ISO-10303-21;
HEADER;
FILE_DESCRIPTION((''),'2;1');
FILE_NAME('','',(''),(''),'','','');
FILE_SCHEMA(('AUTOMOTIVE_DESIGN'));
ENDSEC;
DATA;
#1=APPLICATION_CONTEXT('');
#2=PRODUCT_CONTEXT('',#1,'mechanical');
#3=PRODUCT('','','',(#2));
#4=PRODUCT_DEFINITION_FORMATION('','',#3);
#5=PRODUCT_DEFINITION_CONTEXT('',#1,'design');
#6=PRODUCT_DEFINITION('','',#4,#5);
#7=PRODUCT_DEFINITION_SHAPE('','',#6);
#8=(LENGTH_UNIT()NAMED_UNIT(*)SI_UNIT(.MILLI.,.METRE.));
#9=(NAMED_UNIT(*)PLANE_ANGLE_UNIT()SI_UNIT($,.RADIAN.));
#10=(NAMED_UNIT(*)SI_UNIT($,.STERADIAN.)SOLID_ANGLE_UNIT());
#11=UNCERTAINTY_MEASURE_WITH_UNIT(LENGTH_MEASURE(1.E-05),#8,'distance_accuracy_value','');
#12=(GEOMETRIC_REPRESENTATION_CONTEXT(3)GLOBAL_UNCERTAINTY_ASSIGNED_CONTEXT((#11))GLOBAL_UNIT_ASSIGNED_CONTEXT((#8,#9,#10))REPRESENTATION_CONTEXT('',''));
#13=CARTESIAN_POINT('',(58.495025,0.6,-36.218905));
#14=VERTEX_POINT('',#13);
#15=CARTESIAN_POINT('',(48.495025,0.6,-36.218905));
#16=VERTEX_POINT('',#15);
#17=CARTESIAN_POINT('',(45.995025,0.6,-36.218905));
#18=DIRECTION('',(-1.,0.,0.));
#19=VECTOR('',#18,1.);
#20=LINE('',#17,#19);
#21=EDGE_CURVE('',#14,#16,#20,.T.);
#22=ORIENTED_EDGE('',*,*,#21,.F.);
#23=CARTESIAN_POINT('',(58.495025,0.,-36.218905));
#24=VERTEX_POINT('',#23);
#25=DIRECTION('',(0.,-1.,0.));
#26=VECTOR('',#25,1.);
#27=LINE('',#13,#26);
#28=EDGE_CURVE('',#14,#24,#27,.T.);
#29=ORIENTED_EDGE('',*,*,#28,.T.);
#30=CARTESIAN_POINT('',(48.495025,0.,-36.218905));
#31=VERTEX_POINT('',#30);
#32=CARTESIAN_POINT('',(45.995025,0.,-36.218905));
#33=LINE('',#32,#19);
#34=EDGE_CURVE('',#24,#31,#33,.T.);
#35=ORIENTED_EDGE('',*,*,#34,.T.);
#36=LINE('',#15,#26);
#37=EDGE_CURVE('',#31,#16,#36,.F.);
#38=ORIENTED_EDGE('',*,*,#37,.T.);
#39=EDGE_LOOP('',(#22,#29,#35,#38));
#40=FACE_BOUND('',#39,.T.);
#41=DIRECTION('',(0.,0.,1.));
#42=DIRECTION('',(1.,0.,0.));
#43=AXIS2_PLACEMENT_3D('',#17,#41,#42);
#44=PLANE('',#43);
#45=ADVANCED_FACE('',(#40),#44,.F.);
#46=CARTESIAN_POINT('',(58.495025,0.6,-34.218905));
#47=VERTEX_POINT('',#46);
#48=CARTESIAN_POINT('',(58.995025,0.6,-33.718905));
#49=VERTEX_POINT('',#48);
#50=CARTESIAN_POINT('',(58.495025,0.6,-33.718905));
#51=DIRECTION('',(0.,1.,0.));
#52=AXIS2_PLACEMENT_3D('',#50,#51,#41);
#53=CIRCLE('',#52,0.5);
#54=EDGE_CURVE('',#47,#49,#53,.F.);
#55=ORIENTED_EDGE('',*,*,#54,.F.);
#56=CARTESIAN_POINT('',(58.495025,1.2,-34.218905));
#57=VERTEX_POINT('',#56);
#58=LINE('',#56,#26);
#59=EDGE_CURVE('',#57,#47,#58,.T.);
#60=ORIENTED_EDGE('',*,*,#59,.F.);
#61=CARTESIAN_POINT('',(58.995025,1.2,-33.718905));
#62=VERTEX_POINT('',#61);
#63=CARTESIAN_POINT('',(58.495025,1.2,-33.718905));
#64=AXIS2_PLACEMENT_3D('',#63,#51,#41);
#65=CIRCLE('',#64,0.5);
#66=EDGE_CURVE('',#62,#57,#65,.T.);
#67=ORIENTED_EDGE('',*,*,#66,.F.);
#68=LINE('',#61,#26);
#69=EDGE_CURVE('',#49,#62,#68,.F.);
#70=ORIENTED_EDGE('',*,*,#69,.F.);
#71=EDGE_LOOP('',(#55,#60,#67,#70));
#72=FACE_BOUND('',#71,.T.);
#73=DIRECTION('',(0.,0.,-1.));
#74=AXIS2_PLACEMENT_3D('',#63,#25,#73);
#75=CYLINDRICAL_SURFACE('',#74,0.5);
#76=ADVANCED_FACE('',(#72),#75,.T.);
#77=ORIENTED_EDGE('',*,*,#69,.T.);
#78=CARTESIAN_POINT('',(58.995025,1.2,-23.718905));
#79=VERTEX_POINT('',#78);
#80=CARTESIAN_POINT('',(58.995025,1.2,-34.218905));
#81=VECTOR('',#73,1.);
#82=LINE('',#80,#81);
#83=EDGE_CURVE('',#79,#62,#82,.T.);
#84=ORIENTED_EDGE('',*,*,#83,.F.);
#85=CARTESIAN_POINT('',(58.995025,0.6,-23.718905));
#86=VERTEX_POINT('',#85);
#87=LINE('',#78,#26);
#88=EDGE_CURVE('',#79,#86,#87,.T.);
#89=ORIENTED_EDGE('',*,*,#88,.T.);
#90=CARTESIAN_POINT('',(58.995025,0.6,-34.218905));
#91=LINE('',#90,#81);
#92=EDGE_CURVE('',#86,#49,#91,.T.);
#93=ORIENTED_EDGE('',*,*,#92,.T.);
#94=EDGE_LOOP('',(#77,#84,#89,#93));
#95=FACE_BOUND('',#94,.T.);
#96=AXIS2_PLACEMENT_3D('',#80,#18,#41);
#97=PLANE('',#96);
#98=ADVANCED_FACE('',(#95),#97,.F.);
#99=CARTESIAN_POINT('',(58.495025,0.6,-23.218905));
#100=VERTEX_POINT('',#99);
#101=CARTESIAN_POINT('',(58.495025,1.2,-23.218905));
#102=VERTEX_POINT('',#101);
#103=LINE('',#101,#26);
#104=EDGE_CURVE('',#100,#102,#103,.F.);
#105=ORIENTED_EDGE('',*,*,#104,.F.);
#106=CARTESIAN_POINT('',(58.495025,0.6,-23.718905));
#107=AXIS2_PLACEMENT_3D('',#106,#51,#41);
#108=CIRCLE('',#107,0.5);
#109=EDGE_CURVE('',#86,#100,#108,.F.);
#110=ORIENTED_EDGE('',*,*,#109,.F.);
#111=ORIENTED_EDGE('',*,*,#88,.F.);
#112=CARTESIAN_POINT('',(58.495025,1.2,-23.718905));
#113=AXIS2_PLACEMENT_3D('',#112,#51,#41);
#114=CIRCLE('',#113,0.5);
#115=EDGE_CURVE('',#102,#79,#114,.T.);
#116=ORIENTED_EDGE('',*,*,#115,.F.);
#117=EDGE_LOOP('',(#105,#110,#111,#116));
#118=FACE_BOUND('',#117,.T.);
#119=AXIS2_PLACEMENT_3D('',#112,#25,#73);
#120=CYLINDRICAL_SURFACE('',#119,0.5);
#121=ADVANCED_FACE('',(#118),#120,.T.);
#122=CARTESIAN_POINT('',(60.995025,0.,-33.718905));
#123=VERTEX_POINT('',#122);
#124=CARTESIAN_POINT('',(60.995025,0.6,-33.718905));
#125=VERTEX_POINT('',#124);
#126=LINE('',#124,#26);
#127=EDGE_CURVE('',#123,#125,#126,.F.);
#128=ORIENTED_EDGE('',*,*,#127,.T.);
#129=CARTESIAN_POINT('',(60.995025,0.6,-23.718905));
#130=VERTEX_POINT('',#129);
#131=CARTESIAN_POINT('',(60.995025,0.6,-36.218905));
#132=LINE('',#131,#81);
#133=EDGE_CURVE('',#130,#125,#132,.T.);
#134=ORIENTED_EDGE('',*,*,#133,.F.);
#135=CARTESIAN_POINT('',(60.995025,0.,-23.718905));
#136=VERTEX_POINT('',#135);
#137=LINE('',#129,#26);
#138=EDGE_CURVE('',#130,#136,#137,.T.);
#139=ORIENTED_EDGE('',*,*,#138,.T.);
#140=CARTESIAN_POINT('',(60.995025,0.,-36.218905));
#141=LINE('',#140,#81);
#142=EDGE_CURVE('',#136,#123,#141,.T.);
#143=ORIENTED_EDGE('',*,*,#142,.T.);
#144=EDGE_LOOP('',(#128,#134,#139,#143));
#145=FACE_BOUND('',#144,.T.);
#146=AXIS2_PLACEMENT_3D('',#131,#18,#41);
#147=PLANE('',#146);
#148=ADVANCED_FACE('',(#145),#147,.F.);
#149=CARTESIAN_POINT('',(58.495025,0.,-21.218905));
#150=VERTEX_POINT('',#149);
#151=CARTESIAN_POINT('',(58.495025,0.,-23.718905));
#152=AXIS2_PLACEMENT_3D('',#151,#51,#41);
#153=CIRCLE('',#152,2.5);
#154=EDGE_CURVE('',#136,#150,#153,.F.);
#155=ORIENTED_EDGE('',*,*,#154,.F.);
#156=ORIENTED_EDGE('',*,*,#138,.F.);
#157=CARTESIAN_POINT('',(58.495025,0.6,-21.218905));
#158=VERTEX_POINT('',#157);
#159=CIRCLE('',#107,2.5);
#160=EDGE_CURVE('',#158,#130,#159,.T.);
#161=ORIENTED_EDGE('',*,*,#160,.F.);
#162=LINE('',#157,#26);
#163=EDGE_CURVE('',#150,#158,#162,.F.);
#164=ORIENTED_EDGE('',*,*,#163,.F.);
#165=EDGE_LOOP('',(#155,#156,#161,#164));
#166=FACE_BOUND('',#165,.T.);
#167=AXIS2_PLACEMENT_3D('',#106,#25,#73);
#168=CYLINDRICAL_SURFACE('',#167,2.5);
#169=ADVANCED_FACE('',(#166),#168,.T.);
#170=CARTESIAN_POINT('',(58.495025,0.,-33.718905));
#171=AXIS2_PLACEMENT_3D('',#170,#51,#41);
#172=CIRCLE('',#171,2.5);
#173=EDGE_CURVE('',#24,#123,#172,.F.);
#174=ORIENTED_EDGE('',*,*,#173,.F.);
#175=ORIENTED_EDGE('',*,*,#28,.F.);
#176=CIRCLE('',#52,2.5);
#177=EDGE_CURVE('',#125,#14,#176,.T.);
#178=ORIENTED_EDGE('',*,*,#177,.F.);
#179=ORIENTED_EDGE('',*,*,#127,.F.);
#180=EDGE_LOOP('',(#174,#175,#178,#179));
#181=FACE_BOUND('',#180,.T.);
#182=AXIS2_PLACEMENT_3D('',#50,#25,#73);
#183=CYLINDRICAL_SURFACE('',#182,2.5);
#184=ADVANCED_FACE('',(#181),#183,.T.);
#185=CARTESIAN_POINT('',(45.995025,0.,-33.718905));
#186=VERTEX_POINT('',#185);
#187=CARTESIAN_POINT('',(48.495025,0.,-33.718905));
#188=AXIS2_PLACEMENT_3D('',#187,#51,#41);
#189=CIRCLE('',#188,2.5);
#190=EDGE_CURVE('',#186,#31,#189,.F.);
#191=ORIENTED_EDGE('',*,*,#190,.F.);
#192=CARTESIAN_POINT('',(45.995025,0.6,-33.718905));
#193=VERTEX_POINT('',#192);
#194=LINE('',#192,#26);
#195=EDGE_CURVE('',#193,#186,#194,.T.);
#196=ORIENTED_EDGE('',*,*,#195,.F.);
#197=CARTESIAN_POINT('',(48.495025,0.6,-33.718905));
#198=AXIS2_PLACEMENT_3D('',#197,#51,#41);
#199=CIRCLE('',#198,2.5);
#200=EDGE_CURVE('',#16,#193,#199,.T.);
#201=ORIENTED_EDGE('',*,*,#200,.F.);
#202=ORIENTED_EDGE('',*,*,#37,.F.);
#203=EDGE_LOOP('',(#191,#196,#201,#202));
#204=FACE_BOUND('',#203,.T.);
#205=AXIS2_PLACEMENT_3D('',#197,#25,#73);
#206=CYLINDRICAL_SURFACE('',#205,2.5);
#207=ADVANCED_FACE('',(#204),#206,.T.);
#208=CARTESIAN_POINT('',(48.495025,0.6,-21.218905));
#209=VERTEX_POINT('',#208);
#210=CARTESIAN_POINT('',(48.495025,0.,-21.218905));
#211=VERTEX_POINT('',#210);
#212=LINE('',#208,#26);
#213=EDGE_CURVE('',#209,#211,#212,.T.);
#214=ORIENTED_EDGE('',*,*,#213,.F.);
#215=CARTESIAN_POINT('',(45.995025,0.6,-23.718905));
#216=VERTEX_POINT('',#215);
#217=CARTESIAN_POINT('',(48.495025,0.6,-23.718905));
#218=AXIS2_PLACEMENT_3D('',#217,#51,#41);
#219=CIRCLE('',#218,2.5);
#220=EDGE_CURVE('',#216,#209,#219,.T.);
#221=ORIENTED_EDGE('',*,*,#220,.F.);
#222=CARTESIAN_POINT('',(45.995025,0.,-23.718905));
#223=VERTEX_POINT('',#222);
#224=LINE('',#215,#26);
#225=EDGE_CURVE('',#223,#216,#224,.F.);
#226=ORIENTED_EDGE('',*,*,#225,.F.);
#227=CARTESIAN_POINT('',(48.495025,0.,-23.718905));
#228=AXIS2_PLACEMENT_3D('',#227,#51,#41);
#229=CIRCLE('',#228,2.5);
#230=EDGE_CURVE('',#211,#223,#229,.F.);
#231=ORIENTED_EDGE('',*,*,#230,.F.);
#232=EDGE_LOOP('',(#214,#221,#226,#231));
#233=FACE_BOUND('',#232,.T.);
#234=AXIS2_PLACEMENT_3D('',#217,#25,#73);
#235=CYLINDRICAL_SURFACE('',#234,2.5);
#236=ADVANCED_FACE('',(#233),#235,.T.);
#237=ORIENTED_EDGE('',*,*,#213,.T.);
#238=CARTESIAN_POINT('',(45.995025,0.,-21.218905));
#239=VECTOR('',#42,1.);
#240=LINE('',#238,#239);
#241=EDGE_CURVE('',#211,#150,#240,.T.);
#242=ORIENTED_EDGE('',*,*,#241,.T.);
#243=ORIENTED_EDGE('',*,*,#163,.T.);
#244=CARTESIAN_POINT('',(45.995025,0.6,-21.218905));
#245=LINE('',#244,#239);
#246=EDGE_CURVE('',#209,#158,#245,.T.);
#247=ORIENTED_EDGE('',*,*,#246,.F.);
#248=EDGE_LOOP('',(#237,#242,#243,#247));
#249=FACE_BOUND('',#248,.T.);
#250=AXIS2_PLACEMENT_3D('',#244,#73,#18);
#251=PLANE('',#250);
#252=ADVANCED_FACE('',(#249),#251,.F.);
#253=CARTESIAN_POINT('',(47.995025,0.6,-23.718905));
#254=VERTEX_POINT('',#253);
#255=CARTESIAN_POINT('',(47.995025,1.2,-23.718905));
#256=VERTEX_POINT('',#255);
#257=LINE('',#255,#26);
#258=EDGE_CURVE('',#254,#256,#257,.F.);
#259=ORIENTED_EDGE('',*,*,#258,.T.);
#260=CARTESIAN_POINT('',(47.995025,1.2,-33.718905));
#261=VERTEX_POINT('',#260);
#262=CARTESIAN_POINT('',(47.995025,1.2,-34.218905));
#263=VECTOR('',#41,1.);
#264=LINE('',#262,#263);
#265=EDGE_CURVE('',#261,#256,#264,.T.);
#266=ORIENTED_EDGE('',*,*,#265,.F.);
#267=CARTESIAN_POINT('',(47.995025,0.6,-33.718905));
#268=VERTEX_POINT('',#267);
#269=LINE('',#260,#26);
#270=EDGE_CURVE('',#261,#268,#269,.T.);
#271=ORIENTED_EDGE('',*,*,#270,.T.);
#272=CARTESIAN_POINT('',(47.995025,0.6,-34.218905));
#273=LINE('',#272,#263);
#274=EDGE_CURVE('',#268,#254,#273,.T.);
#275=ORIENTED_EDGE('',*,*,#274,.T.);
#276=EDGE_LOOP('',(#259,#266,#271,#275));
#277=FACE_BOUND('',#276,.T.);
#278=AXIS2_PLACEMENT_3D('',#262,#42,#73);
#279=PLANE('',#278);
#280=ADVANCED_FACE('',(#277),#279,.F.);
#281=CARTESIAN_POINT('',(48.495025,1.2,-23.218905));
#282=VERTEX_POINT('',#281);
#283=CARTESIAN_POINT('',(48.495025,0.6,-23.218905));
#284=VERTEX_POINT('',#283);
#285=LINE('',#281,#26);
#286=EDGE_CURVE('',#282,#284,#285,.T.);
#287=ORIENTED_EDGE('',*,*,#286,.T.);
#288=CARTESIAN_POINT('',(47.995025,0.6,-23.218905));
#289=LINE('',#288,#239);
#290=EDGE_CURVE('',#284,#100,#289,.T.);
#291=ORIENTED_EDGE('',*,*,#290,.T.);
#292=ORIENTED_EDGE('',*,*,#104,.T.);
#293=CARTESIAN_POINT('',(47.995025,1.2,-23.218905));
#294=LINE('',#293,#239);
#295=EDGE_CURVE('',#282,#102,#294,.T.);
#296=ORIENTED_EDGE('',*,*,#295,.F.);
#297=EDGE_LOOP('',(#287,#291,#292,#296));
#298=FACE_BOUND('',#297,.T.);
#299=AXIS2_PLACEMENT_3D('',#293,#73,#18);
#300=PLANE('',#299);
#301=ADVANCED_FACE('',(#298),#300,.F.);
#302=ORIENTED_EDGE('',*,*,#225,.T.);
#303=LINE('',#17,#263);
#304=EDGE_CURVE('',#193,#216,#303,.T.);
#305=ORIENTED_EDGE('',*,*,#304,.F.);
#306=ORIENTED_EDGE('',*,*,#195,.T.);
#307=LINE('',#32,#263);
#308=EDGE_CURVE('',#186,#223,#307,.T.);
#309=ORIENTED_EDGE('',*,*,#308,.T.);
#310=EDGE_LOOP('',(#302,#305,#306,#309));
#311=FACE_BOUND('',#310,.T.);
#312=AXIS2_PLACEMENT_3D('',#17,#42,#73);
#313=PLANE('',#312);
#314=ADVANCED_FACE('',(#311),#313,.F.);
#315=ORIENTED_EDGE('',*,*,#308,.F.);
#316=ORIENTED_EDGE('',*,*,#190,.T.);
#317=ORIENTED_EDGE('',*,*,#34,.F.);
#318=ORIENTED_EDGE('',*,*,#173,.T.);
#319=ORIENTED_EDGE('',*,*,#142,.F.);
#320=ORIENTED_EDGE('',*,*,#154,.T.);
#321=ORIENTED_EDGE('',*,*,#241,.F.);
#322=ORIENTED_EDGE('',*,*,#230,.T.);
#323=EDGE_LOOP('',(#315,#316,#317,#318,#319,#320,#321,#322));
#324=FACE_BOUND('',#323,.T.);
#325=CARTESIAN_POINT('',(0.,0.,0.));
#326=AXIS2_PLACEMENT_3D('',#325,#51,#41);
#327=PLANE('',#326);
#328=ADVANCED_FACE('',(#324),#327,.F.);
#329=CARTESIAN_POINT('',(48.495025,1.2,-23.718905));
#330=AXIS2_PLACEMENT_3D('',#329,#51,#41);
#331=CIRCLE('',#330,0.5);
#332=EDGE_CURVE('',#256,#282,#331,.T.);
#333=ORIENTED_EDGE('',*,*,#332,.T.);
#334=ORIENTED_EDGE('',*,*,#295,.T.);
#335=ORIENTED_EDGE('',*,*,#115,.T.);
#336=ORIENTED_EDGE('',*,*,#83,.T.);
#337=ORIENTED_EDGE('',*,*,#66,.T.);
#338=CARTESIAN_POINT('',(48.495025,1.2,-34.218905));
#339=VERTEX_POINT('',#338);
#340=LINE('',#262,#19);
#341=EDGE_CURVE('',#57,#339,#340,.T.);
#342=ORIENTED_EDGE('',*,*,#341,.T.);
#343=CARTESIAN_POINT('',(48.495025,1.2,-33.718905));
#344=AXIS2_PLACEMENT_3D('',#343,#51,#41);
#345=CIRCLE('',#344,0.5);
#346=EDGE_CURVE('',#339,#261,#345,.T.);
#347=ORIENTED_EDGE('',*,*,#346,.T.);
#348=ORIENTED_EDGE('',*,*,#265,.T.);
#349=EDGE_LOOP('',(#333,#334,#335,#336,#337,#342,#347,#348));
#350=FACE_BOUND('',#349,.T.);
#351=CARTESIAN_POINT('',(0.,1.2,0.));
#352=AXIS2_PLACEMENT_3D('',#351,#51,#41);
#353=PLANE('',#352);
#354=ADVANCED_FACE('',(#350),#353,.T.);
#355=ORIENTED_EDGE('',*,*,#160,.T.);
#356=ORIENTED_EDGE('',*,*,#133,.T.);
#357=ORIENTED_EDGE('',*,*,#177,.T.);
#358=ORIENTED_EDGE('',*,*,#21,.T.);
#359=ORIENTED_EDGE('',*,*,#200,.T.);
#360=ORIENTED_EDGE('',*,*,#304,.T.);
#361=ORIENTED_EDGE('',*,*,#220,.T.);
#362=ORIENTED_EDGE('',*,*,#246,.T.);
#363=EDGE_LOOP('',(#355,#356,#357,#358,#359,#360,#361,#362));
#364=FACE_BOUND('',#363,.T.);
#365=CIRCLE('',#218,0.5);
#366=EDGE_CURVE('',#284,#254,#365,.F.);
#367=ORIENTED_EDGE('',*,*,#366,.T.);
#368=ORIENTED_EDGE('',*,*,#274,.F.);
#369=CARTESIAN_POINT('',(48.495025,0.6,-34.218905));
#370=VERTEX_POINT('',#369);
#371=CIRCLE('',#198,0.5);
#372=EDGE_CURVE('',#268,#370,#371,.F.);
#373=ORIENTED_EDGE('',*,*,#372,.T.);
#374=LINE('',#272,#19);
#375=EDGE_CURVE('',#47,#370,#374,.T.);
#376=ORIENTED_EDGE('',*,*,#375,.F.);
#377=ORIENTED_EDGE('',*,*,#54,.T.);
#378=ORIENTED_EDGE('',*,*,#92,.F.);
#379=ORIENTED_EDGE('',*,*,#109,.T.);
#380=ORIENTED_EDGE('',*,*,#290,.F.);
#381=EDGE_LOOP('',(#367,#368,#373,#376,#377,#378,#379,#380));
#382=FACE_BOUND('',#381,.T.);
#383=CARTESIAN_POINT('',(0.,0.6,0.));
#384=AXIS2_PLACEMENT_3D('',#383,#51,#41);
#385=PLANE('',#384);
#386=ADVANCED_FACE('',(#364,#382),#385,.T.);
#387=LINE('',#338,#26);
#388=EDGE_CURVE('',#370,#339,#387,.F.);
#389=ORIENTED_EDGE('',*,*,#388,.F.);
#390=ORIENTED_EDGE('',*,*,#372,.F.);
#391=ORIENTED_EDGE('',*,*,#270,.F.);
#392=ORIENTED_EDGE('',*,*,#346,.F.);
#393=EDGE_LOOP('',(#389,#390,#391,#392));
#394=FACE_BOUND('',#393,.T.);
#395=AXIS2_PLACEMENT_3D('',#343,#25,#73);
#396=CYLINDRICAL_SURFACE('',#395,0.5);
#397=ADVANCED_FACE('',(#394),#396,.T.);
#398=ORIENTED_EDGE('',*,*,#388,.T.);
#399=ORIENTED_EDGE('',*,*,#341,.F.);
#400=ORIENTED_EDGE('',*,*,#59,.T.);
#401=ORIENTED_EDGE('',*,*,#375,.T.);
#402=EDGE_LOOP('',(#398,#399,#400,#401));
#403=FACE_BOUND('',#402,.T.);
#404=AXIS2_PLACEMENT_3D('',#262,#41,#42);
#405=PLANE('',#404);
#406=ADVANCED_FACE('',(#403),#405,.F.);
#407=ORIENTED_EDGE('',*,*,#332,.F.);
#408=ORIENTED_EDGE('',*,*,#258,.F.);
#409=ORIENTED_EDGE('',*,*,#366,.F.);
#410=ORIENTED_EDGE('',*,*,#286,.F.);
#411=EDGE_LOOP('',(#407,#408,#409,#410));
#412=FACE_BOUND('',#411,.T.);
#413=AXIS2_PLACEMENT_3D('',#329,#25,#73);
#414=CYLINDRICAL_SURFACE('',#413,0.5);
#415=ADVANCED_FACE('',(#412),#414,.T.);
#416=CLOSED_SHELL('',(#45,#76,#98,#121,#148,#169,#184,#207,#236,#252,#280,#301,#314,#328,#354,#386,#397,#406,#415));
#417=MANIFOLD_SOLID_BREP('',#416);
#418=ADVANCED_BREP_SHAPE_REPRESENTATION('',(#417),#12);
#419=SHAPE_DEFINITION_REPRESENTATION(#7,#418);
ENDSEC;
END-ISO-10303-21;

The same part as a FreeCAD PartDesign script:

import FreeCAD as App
import Part
import Sketcher
from FreeCAD import Vector


def edges_at(feature, points):
    """Names of the edges that pass closest to the given points."""
    edges = feature.Shape.Edges
    near = lambda p: min(range(len(edges)), key=lambda i: edges[i].distToShape(Part.Vertex(*p))[0])
    return sorted({f"Edge{near(p) + 1}" for p in points})


def add_polygon(sketch, points):
    """Adds a closed chain of lines whose ends are joined by coincident constraints."""
    first, n = sketch.GeometryCount, len(points)
    for a, b in zip(points, points[1:] + points[:1]):
        sketch.addGeometry(Part.LineSegment(App.Vector(*a, 0), App.Vector(*b, 0)), False)
    for i in range(n):
        sketch.addConstraint(Sketcher.Constraint("Coincident", first + i, 2, first + (i + 1) % n, 1))

doc = App.newDocument("Part")
body = doc.addObject("PartDesign::Body", "Body")

# Sketch on XZ plane
sketch1 = body.newObject("Sketcher::SketchObject", "Sketch")
sketch1.AttachmentSupport = (doc.getObject("XZ_Plane"), [""])
sketch1.MapMode = "FlatFace"
add_polygon(sketch1, [(46, -36), (46, -21), (61, -21), (61, -36)])  # lines 0-3
sketch1.addConstraint([
    Sketcher.Constraint("Vertical", 0),
    Sketcher.Constraint("Horizontal", 1),
    Sketcher.Constraint("Vertical", 2),
    Sketcher.Constraint("Horizontal", 3),
    Sketcher.Constraint("Equal", 3, 0),
    Sketcher.Constraint("DistanceX", 1, 1, 1, 2, 15.0),
    Sketcher.Constraint("DistanceX", -1, 1, 0, 2, 45.995025),
    Sketcher.Constraint("DistanceY", 0, 2, -1, 1, 21.218905),
])
pad1 = body.newObject("PartDesign::Pad", "Pad")
pad1.Profile = sketch1
pad1.Length = 0.6
pad1.Reversed = True
doc.recompute()

fillet = body.newObject("PartDesign::Fillet", "Fillet")
fillet.Base = (pad1, edges_at(pad1, [
    (45.995, 0.3, -36.219),
    (60.995, 0.3, -36.219),
    (60.995, 0.3, -21.219),
    (45.995, 0.3, -21.219),
]))
fillet.Radius = 2.5

# Sketch on XZ plane
sketch2 = body.newObject("Sketcher::SketchObject", "Sketch001")
sketch2.AttachmentSupport = (doc.getObject("XZ_Plane"), [""])
sketch2.MapMode = "FlatFace"
sketch2.AttachmentOffset = App.Placement(Vector(0, 0, -0.6), App.Rotation())
add_polygon(sketch2, [(48, -34), (48, -23), (59, -23), (59, -34)])  # lines 0-3
sketch2.addConstraint([
    Sketcher.Constraint("Vertical", 0),
    Sketcher.Constraint("Horizontal", 1),
    Sketcher.Constraint("Vertical", 2),
    Sketcher.Constraint("Horizontal", 3),
    Sketcher.Constraint("Equal", 3, 0),
    Sketcher.Constraint("DistanceX", 1, 1, 1, 2, 11.0),
    Sketcher.Constraint("DistanceX", -1, 1, 0, 2, 47.995025),
    Sketcher.Constraint("DistanceY", 0, 2, -1, 1, 23.218905),
])
pad2 = body.newObject("PartDesign::Pad", "Pad001")
pad2.Profile = sketch2
pad2.Length = 0.6
pad2.Reversed = True
doc.recompute()

fillet2 = body.newObject("PartDesign::Fillet", "Fillet001")
fillet2.Base = (pad2, edges_at(pad2, [
    (47.995, 0.9, -34.219),
    (47.995, 0.9, -23.219),
    (58.995, 0.9, -23.219),
    (58.995, 0.9, -34.219),
]))
fillet2.Radius = 0.5

doc.recompute()
